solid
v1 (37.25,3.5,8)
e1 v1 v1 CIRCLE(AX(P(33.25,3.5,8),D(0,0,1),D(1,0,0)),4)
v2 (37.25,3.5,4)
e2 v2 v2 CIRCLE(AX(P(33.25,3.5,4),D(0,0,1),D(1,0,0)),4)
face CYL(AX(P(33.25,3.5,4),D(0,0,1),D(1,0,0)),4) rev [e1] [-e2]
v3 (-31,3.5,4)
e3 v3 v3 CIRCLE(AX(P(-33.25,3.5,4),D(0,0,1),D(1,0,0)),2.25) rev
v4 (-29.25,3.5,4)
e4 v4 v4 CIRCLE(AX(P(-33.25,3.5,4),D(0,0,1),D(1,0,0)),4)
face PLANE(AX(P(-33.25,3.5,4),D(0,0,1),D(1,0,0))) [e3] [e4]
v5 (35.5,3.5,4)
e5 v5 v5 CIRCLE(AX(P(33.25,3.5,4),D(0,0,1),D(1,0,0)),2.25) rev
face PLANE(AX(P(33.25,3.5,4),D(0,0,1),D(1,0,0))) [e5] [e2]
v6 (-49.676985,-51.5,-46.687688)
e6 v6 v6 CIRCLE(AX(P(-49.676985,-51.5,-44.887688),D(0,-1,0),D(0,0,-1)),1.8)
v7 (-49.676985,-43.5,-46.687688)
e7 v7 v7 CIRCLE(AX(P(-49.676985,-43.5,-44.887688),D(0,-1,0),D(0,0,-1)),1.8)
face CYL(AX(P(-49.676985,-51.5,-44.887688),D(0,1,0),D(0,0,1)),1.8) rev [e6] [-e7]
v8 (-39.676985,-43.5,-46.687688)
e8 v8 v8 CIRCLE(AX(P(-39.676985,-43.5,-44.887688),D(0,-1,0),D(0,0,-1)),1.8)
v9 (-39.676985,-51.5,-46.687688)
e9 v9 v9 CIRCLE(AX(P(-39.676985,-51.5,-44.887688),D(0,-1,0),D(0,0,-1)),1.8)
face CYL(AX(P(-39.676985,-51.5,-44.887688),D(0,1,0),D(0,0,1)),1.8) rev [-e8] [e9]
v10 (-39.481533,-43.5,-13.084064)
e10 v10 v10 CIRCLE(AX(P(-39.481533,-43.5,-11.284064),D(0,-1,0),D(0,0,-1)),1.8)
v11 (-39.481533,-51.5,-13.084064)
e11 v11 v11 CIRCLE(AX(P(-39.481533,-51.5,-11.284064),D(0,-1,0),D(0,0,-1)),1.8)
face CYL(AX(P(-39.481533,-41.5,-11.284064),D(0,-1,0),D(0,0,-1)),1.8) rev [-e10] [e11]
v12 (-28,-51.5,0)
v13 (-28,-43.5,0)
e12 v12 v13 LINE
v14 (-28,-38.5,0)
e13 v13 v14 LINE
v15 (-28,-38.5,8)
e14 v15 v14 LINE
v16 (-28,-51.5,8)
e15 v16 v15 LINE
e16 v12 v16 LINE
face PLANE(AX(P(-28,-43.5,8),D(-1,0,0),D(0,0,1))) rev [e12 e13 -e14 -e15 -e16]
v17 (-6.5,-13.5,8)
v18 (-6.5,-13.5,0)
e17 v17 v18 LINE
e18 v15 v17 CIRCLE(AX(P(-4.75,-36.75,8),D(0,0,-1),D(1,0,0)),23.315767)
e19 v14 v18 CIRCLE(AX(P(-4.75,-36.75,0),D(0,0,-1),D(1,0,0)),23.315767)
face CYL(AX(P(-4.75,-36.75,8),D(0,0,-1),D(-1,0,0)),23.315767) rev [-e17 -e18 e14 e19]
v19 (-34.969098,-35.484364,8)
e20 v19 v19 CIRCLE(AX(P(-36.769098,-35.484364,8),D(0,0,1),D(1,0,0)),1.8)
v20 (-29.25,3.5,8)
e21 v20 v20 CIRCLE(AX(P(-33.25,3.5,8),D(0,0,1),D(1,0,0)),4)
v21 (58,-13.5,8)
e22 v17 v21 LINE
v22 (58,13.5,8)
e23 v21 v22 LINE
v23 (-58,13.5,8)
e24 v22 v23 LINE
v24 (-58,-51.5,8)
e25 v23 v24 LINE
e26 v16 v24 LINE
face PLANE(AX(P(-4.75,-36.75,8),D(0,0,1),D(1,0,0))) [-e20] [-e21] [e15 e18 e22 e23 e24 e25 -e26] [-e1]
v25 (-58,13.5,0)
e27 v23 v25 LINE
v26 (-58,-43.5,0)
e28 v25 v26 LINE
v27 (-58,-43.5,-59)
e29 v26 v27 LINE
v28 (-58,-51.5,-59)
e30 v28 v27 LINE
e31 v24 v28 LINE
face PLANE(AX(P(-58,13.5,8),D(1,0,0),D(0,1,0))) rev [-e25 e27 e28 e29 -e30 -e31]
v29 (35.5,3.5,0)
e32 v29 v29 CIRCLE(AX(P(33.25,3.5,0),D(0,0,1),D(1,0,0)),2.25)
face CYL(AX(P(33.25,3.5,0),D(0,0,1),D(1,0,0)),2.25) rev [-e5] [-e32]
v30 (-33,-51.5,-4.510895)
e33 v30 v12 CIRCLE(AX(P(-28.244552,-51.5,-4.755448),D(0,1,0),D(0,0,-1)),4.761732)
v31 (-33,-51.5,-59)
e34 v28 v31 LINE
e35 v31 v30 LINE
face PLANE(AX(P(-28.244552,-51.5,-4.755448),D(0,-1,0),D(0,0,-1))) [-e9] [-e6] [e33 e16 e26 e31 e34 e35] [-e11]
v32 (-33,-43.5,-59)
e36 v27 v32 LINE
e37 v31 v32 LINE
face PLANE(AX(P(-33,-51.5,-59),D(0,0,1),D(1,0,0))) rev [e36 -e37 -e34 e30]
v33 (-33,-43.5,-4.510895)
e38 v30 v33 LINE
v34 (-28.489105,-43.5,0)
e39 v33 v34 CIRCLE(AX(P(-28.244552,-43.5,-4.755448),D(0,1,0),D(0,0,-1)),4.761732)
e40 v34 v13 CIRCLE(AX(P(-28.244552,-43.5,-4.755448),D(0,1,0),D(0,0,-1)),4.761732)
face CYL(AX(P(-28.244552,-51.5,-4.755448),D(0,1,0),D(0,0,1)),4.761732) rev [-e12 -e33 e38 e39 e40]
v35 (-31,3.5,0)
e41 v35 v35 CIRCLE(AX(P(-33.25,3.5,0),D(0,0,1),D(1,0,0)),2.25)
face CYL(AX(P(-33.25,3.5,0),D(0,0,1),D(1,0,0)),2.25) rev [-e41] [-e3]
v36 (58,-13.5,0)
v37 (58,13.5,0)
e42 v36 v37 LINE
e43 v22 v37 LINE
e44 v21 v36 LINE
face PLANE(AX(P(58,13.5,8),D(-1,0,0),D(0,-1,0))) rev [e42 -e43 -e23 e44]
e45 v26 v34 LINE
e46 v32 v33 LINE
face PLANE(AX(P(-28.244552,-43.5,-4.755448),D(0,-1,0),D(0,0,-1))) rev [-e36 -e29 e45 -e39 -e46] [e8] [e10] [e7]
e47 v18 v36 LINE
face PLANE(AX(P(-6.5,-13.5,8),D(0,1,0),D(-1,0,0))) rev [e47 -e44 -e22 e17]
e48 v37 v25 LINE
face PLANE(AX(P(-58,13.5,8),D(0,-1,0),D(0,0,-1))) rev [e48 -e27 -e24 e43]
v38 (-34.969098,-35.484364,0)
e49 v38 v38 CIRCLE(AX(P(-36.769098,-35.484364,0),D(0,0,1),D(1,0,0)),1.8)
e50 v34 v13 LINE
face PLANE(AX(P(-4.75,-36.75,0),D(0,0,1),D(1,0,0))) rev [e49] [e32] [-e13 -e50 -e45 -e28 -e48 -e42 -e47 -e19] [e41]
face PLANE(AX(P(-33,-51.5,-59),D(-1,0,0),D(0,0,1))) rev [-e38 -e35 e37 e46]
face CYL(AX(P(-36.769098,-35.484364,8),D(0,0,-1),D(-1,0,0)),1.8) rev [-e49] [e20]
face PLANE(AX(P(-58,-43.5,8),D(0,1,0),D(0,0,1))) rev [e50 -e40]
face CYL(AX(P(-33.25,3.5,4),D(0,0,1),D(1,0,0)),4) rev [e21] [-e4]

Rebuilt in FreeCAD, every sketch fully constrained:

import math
import FreeCAD as App
import Part
import Sketcher
from FreeCAD import Vector

doc = App.newDocument("Part")
body = doc.addObject("PartDesign::Body", "Body")

# Sketch on XY plane
sketch1 = body.newObject("Sketcher::SketchObject", "Sketch")
sketch1.AttachmentSupport = (doc.getObject("XY_Plane"), [""])
sketch1.MapMode = "FlatFace"
sketch1.addGeometry([
    Part.LineSegment(Vector(58, -13.5, 0), Vector(58, 13.5, 0)),  # 0
    Part.LineSegment(Vector(58, 13.5, 0), Vector(-58, 13.5, 0)),  # 1
    Part.LineSegment(Vector(-58, 13.5, 0), Vector(-58, -43.5, 0)),  # 2
    Part.LineSegment(Vector(-58, -43.5, 0), Vector(-28, -43.5, 0)),  # 3
    Part.LineSegment(Vector(-28, -43.5, 0), Vector(-28, -38.5, 0)),  # 4
    Part.ArcOfCircle(Part.Circle(Vector(-4.8, -36.7, 0), Vector(0, 0, 1), 23.3), math.radians(94), math.radians(184)),  # 5
    Part.LineSegment(Vector(-6.5, -13.5, 0), Vector(58, -13.5, 0)),  # 6
    Part.Circle(Vector(-36.8, -35.5, 0), Vector(0, 0, 1), 1.8),  # 7
], False)
sketch1.addConstraint([
    Sketcher.Constraint("Coincident", 0, 2, 1, 1),
    Sketcher.Constraint("Coincident", 1, 2, 2, 1),
    Sketcher.Constraint("Coincident", 2, 2, 3, 1),
    Sketcher.Constraint("Coincident", 3, 2, 4, 1),
    Sketcher.Constraint("Coincident", 4, 2, 5, 2),
    Sketcher.Constraint("Coincident", 5, 1, 6, 1),
    Sketcher.Constraint("Coincident", 6, 2, 0, 1),
    Sketcher.Constraint("Vertical", 0),
    Sketcher.Constraint("Horizontal", 1),
    Sketcher.Constraint("Vertical", 2),
    Sketcher.Constraint("Horizontal", 3),
    Sketcher.Constraint("Vertical", 4),
    Sketcher.Constraint("Horizontal", 6),
    Sketcher.Constraint("Symmetric", 1, 2, 6, 2, -1, 1),
    Sketcher.Constraint("Diameter", 7, 3.6),
    Sketcher.Constraint("DistanceX", 1, 2, 1, 1, 116.0),
    Sketcher.Constraint("DistanceX", 3, 1, 3, 2, 30.0),
    Sketcher.Constraint("DistanceY", 0, 1, 0, 2, 27.0),
    Sketcher.Constraint("DistanceY", 2, 2, 2, 1, 57.0),
    Sketcher.Constraint("DistanceY", 4, 1, 4, 2, 5.0),
    Sketcher.Constraint("DistanceX", 6, 1, 6, 2, 64.5),
    Sketcher.Constraint("DistanceX", 5, 3, -1, 1, 4.75),
    Sketcher.Constraint("DistanceX", 7, 3, -1, 1, 36.769098),
    Sketcher.Constraint("DistanceY", 7, 3, -1, 1, 35.484364),
])
pad1 = body.newObject("PartDesign::Pad", "Pad")
pad1.Profile = sketch1
pad1.Length = 8

# Sketch on XY plane
sketch2 = body.newObject("Sketcher::SketchObject", "Sketch001")
sketch2.AttachmentSupport = (doc.getObject("XY_Plane"), [""])
sketch2.MapMode = "FlatFace"
sketch2.AttachmentOffset = App.Placement(Vector(0, 0, 8), App.Rotation())
sketch2.addGeometry([
    Part.Circle(Vector(-33.2, 3.5, 0), Vector(0, 0, 1), 2.2),
    Part.Circle(Vector(33.2, 3.5, 0), Vector(0, 0, 1), 2.2),
], False)
sketch2.addConstraint([
    Sketcher.Constraint("Equal", 0, 1),
    Sketcher.Constraint("Symmetric", 0, 3, 1, 3, -2),
    Sketcher.Constraint("Diameter", 0, 4.5),
    Sketcher.Constraint("DistanceY", -1, 1, 0, 3, 3.5),
    Sketcher.Constraint("DistanceX", 0, 3, 1, 3, 66.5),
])
pocket1 = body.newObject("PartDesign::Pocket", "Pocket")
pocket1.Profile = sketch2
pocket1.Type = "ThroughAll"

# Sketch on XZ plane
sketch3 = body.newObject("Sketcher::SketchObject", "Sketch002")
sketch3.AttachmentSupport = (doc.getObject("XZ_Plane"), [""])
sketch3.MapMode = "FlatFace"
sketch3.AttachmentOffset = App.Placement(Vector(0, 0, 43.5), App.Rotation())
sketch3.addGeometry([
    Part.LineSegment(Vector(-58, -59, 0), Vector(-33, -59, 0)),  # 0
    Part.LineSegment(Vector(-33, -59, 0), Vector(-33, -4.5, 0)),  # 1
    Part.ArcOfCircle(Part.Circle(Vector(-28.2, -4.8, 0), Vector(0, 0, 1), 4.8), math.radians(87), math.radians(177)),  # 2
    Part.LineSegment(Vector(-28, 0, 0), Vector(-28, 8, 0)),  # 3
    Part.LineSegment(Vector(-28, 8, 0), Vector(-58, 8, 0)),  # 4
    Part.LineSegment(Vector(-58, 8, 0), Vector(-58, -59, 0)),  # 5
    Part.Circle(Vector(-39.7, -44.9, 0), Vector(0, 0, 1), 1.8),  # 6
    Part.Circle(Vector(-49.7, -44.9, 0), Vector(0, 0, 1), 1.8),  # 7
], False)
sketch3.addConstraint([
    Sketcher.Constraint("Coincident", 0, 2, 1, 1),
    Sketcher.Constraint("Coincident", 1, 2, 2, 2),
    Sketcher.Constraint("Coincident", 2, 1, 3, 1),
    Sketcher.Constraint("Coincident", 3, 2, 4, 1),
    Sketcher.Constraint("Coincident", 4, 2, 5, 1),
    Sketcher.Constraint("Coincident", 5, 2, 0, 1),
    Sketcher.Constraint("Horizontal", 0),
    Sketcher.Constraint("Vertical", 1),
    Sketcher.Constraint("Vertical", 3),
    Sketcher.Constraint("Horizontal", 4),
    Sketcher.Constraint("Vertical", 5),
    Sketcher.Constraint("Equal", 6, 7),
    Sketcher.Constraint("PointOnObject", 2, 1, -1),
    Sketcher.Constraint("Horizontal", 6, 3, 7, 3),
    Sketcher.Constraint("Diameter", 6, 3.6),
    Sketcher.Constraint("DistanceX", 0, 1, 0, 2, 25.0),
    Sketcher.Constraint("DistanceX", 4, 2, 4, 1, 30.0),
    Sketcher.Constraint("DistanceY", 3, 1, 3, 2, 8.0),
    Sketcher.Constraint("DistanceY", 5, 2, 5, 1, 67.0),
    Sketcher.Constraint("DistanceX", 0, 2, -1, 1, 33.0),
    Sketcher.Constraint("DistanceX", 7, 3, 6, 3, 10.0),
    Sketcher.Constraint("Radius", 2, 4.761732),
    Sketcher.Constraint("DistanceY", 1, 1, 1, 2, 54.489105),
    Sketcher.Constraint("DistanceY", 6, 3, 2, 3, 40.13224),
    Sketcher.Constraint("DistanceX", 6, 3, -1, 1, 39.676985),
])
pad2 = body.newObject("PartDesign::Pad", "Pad001")
pad2.Profile = sketch3
pad2.Length = 8

# Sketch on XZ plane
sketch4 = body.newObject("Sketcher::SketchObject", "Sketch003")
sketch4.AttachmentSupport = (doc.getObject("XZ_Plane"), [""])
sketch4.MapMode = "FlatFace"
sketch4.AttachmentOffset = App.Placement(Vector(0, 0, 51.5), App.Rotation())
sketch4.addGeometry(Part.Circle(Vector(-39.5, -11.3, 0), Vector(0, 0, 1), 1.8), False)
sketch4.addConstraint([
    Sketcher.Constraint("Diameter", 0, 3.6),
    Sketcher.Constraint("DistanceX", 0, 3, -1, 1, 39.481533),
    Sketcher.Constraint("DistanceY", 0, 3, -1, 1, 11.284064),
])
pocket2 = body.newObject("PartDesign::Pocket", "Pocket001")
pocket2.Profile = sketch4
pocket2.Length = 10

# Sketch on XY plane
sketch5 = body.newObject("Sketcher::SketchObject", "Sketch004")
sketch5.AttachmentSupport = (doc.getObject("XY_Plane"), [""])
sketch5.MapMode = "FlatFace"
sketch5.AttachmentOffset = App.Placement(Vector(0, 0, 8), App.Rotation())
sketch5.addGeometry([
    Part.Circle(Vector(-33.2, 3.5, 0), Vector(0, 0, 1), 4),
    Part.Circle(Vector(33.2, 3.5, 0), Vector(0, 0, 1), 4),
], False)
sketch5.addConstraint([
    Sketcher.Constraint("Equal", 0, 1),
    Sketcher.Constraint("Symmetric", 0, 3, 1, 3, -2),
    Sketcher.Constraint("Diameter", 0, 8.0),
    Sketcher.Constraint("DistanceY", -1, 1, 0, 3, 3.5),
    Sketcher.Constraint("DistanceX", 0, 3, 1, 3, 66.5),
])
pocket3 = body.newObject("PartDesign::Pocket", "Pocket002")
pocket3.Profile = sketch5
pocket3.Length = 4

doc.recompute()
